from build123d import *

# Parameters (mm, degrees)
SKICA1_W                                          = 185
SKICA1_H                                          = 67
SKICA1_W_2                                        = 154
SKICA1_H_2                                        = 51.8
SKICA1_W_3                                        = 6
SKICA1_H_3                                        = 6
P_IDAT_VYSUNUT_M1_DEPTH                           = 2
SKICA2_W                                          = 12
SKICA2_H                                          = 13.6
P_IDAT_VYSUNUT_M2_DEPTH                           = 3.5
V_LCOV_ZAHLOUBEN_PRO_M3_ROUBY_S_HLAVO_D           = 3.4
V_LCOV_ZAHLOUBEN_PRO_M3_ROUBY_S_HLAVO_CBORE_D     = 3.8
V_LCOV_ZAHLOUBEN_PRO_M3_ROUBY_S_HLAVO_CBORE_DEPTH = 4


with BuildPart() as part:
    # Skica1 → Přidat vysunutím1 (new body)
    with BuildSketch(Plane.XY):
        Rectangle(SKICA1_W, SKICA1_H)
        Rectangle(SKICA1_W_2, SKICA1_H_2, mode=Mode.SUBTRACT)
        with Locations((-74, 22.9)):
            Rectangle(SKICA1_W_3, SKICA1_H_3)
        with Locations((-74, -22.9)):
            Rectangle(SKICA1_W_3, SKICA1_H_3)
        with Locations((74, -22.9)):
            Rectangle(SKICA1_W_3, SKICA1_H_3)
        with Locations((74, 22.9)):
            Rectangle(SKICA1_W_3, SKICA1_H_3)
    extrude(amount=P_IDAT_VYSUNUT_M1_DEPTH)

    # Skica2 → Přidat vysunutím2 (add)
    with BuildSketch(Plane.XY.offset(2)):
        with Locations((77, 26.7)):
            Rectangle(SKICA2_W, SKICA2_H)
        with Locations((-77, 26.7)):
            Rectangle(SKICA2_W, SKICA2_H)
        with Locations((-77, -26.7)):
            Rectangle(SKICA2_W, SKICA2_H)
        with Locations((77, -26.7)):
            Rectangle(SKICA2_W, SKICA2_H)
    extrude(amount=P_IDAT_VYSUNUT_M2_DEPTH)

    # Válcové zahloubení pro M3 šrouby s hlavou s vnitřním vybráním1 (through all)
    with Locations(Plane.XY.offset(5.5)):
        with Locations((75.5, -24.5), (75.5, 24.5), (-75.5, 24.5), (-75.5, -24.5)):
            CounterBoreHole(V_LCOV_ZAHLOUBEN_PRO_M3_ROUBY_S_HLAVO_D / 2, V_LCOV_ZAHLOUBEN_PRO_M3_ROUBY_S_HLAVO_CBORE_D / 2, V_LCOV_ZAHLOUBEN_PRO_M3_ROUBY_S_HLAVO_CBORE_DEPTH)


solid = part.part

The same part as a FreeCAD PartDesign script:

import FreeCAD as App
import Part
import Sketcher
Q = App.Units.Quantity


def add_polygon(sketch, points):
    """Adds a closed chain of lines whose ends are joined by coincident constraints."""
    first, n = sketch.GeometryCount, len(points)
    for a, b in zip(points, points[1:] + points[:1]):
        sketch.addGeometry(Part.LineSegment(App.Vector(*a, 0), App.Vector(*b, 0)), False)
    for i in range(n):
        sketch.addConstraint(Sketcher.Constraint("Coincident", first + i, 2, first + (i + 1) % n, 1))

doc = App.newDocument("Part")
params = doc.addObject("Spreadsheet::Sheet", "Params")
for row, (alias, value) in enumerate([
    ("sketch1_width", "185 mm"),
    ("sketch1_width2", "142 mm"),
    ("sketch1_width3", "6 mm"),
    ("sketch1_height", "67 mm"),
    ("sketch1_height2", "39.8 mm"),
    ("pad1_length", "2 mm"),
    ("sketch2_width", "12 mm"),
    ("sketch2_height", "13.6 mm"),
    ("pad2_length", "3.5 mm"),
    ("sketch3_diameter", "3.4 mm"),
    ("hole_diameter", "3.4 mm"),
    ("hole_cbore_diameter", "3.8 mm"),
    ("hole_cbore_depth", "4 mm"),
], start=1):
    params.set(f"A{row}", alias)
    params.set(f"B{row}", "=" + value)
    params.setAlias(f"B{row}", alias)

body = doc.addObject("PartDesign::Body", "Body")

# Sketch on XY plane
sketch1 = body.newObject("Sketcher::SketchObject", "Sketch")
sketch1.AttachmentSupport = (doc.getObject("XY_Plane"), [""])
sketch1.MapMode = "FlatFace"
add_polygon(sketch1, [(-92, 34), (-92, -34), (92, -34), (92, 34)])  # lines 0-3
add_polygon(sketch1, [(71, -26), (-71, -26), (-71, -20), (-77, -20), (-77, 20), (-71, 20), (-71, 26), (71, 26), (71, 20), (77, 20), (77, -20), (71, -20)])  # lines 4-15
sketch1.addConstraint([
    Sketcher.Constraint("Vertical", 0),
    Sketcher.Constraint("Horizontal", 1),
    Sketcher.Constraint("Vertical", 2),
    Sketcher.Constraint("Horizontal", 3),
    Sketcher.Constraint("Horizontal", 4),
    Sketcher.Constraint("Vertical", 5),
    Sketcher.Constraint("Horizontal", 6),
    Sketcher.Constraint("Vertical", 7),
    Sketcher.Constraint("Horizontal", 8),
    Sketcher.Constraint("Vertical", 9),
    Sketcher.Constraint("Horizontal", 10),
    Sketcher.Constraint("Vertical", 11),
    Sketcher.Constraint("Horizontal", 12),
    Sketcher.Constraint("Vertical", 13),
    Sketcher.Constraint("Horizontal", 14),
    Sketcher.Constraint("Vertical", 15),
    Sketcher.Constraint("Symmetric", 0, 2, 2, 2, -1, 1),
    Sketcher.Constraint("Symmetric", 4, 2, 10, 2, -1, 1),
    Sketcher.Constraint("Symmetric", 6, 2, 12, 2, -1, 1),
    Sketcher.Constraint("Symmetric", 8, 2, 14, 2, -1, 1),
    Sketcher.Constraint("Symmetric", 8, 2, 11, 2, -2),
    Sketcher.Constraint("Equal", 14, 5),
    Sketcher.Constraint("DistanceX", 1, 1, 1, 2, Q("185 mm")),
    Sketcher.Constraint("DistanceX", 4, 2, 4, 1, Q("142 mm")),
    Sketcher.Constraint("DistanceX", 6, 2, 6, 1, Q("6 mm")),
    Sketcher.Constraint("DistanceY", 0, 2, 0, 1, Q("67 mm")),
    Sketcher.Constraint("DistanceY", 7, 1, 7, 2, Q("39.8 mm")),
])
sketch1.setExpression("Constraints[38]", "Params.sketch1_width")
sketch1.setExpression("Constraints[39]", "Params.sketch1_width2")
sketch1.setExpression("Constraints[40]", "Params.sketch1_width3")
sketch1.setExpression("Constraints[41]", "Params.sketch1_height")
sketch1.setExpression("Constraints[42]", "Params.sketch1_height2")
pad1 = body.newObject("PartDesign::Pad", "Pad")
pad1.Profile = sketch1
pad1.setExpression("Length", "Params.pad1_length")

# Sketch on XY plane
sketch2 = body.newObject("Sketcher::SketchObject", "Sketch001")
sketch2.AttachmentSupport = (doc.getObject("XY_Plane"), [""])
sketch2.MapMode = "FlatFace"
sketch2.AttachmentOffset = App.Placement(App.Vector(0, 0, 2), App.Rotation())
add_polygon(sketch2, [(71, 34), (71, 20), (83, 20), (83, 34)])  # lines 0-3
add_polygon(sketch2, [(-83, 34), (-83, 20), (-71, 20), (-71, 34)])  # lines 4-7
add_polygon(sketch2, [(-83, -20), (-83, -34), (-71, -34), (-71, -20)])  # lines 8-11
add_polygon(sketch2, [(71, -20), (71, -34), (83, -34), (83, -20)])  # lines 12-15
sketch2.addConstraint([
    Sketcher.Constraint("Vertical", 0),
    Sketcher.Constraint("Horizontal", 1),
    Sketcher.Constraint("Vertical", 2),
    Sketcher.Constraint("Horizontal", 3),
    Sketcher.Constraint("Vertical", 4),
    Sketcher.Constraint("Horizontal", 5),
    Sketcher.Constraint("Vertical", 6),
    Sketcher.Constraint("Horizontal", 7),
    Sketcher.Constraint("Vertical", 8),
    Sketcher.Constraint("Horizontal", 9),
    Sketcher.Constraint("Vertical", 10),
    Sketcher.Constraint("Horizontal", 11),
    Sketcher.Constraint("Vertical", 12),
    Sketcher.Constraint("Horizontal", 13),
    Sketcher.Constraint("Vertical", 14),
    Sketcher.Constraint("Horizontal", 15),
    Sketcher.Constraint("Symmetric", 2, 2, 8, 2, -1, 1),
    Sketcher.Constraint("Symmetric", 0, 2, 10, 2, -1, 1),
    Sketcher.Constraint("Symmetric", 6, 2, 12, 2, -1, 1),
    Sketcher.Constraint("Symmetric", 4, 2, 14, 2, -1, 1),
    Sketcher.Constraint("Symmetric", 1, 2, 4, 2, -2),
    Sketcher.Constraint("Symmetric", 3, 2, 6, 2, -2),
    Sketcher.Constraint("DistanceX", 1, 1, 1, 2, Q("12 mm")),
    Sketcher.Constraint("DistanceY", 0, 2, 0, 1, Q("13.6 mm")),
    Sketcher.Constraint("DistanceX", -1, 1, 0, 2, Q("71 mm")),
    Sketcher.Constraint("DistanceY", 8, 2, 7, 2, Q("67 mm")),
])
sketch2.setExpression("Constraints[38]", "Params.sketch2_width")
sketch2.setExpression("Constraints[39]", "Params.sketch2_height")
pad2 = body.newObject("PartDesign::Pad", "Pad001")
pad2.Profile = sketch2
pad2.setExpression("Length", "Params.pad2_length")

# Sketch on XY plane
sketch3 = body.newObject("Sketcher::SketchObject", "Sketch002")
sketch3.AttachmentSupport = (doc.getObject("XY_Plane"), [""])
sketch3.MapMode = "FlatFace"
sketch3.AttachmentOffset = App.Placement(App.Vector(0, 0, 5.5), App.Rotation())
sketch3.addGeometry([
    Part.Circle(App.Vector(75.5, -24.5, 0), App.Vector(0, 0, 1), 1.7),
    Part.Circle(App.Vector(75.5, 24.5, 0), App.Vector(0, 0, 1), 1.7),
    Part.Circle(App.Vector(-75.5, 24.5, 0), App.Vector(0, 0, 1), 1.7),
    Part.Circle(App.Vector(-75.5, -24.5, 0), App.Vector(0, 0, 1), 1.7),
], False)
sketch3.addConstraint([
    Sketcher.Constraint("Equal", 0, 1),
    Sketcher.Constraint("Equal", 1, 2),
    Sketcher.Constraint("Equal", 2, 3),
    Sketcher.Constraint("Symmetric", 0, 3, 2, 3, -1, 1),
    Sketcher.Constraint("Symmetric", 1, 3, 3, 3, -1, 1),
    Sketcher.Constraint("Symmetric", 1, 3, 2, 3, -2),
    Sketcher.Constraint("Diameter", 0, Q("3.4 mm")),
    Sketcher.Constraint("DistanceY", 0, 3, 1, 3, Q("49 mm")),
    Sketcher.Constraint("DistanceX", 2, 3, 1, 3, Q("151 mm")),
])
sketch3.setExpression("Constraints[6]", "Params.sketch3_diameter")
doc.recompute()
hole = body.newObject("PartDesign::Hole", "Hole")
hole.Profile = sketch3
hole.ThreadType = "None"
hole.setExpression("Diameter", "Params.hole_diameter")
hole.DepthType = "ThroughAll"
hole.HoleCutType = "Counterbore"
hole.setExpression("HoleCutDiameter", "Params.hole_cbore_diameter")
hole.setExpression("HoleCutDepth", "Params.hole_cbore_depth")

doc.recompute()
